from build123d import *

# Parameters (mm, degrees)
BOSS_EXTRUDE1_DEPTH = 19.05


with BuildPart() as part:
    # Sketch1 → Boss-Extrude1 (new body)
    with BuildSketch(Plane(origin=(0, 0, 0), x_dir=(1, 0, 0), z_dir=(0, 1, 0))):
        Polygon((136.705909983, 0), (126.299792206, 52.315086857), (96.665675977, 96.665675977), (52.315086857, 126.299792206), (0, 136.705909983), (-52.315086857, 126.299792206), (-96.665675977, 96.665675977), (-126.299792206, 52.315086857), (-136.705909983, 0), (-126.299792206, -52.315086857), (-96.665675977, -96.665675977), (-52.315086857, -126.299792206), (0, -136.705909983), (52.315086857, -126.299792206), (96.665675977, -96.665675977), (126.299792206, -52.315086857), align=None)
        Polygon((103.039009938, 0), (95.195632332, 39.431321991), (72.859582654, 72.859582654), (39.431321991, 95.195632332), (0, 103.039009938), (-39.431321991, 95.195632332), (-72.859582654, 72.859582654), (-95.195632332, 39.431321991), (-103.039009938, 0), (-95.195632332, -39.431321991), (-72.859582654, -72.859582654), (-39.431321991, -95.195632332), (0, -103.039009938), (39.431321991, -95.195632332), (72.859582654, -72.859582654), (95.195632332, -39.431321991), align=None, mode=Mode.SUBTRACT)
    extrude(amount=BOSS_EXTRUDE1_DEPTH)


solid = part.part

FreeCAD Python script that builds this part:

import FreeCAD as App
import Part
import Sketcher
Q = App.Units.Quantity


def add_polygon(sketch, points):
    """Adds a closed chain of lines whose ends are joined by coincident constraints."""
    first, n = sketch.GeometryCount, len(points)
    for a, b in zip(points, points[1:] + points[:1]):
        sketch.addGeometry(Part.LineSegment(App.Vector(*a, 0), App.Vector(*b, 0)), False)
    for i in range(n):
        sketch.addConstraint(Sketcher.Constraint("Coincident", first + i, 2, first + (i + 1) % n, 1))

doc = App.newDocument("Part")
params = doc.addObject("Spreadsheet::Sheet", "Params")
for row, (alias, value) in enumerate([
    ("sketch1_length", "2.1 in"),
    ("pad1_length", "0.75 in"),
], start=1):
    params.set(f"A{row}", alias)
    params.set(f"B{row}", "=" + value)
    params.setAlias(f"B{row}", alias)

body = doc.addObject("PartDesign::Body", "Body")

# Sketch on XZ plane
sketch1 = body.newObject("Sketcher::SketchObject", "Sketch")
sketch1.AttachmentSupport = (doc.getObject("XZ_Plane"), [""])
sketch1.MapMode = "FlatFace"
add_polygon(sketch1, [(137, 0), (126, -52), (97, -97), (52, -126), (0, -137), (-52, -126), (-97, -97), (-126, -52), (-137, 0), (-126, 52), (-97, 97), (-52, 126), (0, 137), (52, 126), (97, 97), (126, 52)])  # lines 0-15
add_polygon(sketch1, [(95, -39), (103, 0), (95, 39), (73, 73), (39, 95), (0, 103), (-39, 95), (-73, 73), (-95, 39), (-103, 0), (-95, -39), (-73, -73), (-39, -95), (0, -103), (39, -95), (73, -73)])  # lines 16-31
sketch1.addConstraint([
    Sketcher.Constraint("Symmetric", 0, 2, 8, 2, -1, 1),
    Sketcher.Constraint("Symmetric", 1, 2, 9, 2, -1, 1),
    Sketcher.Constraint("Symmetric", 2, 2, 10, 2, -1, 1),
    Sketcher.Constraint("Symmetric", 3, 2, 11, 2, -1, 1),
    Sketcher.Constraint("Symmetric", 4, 2, 12, 2, -1, 1),
    Sketcher.Constraint("Symmetric", 5, 2, 13, 2, -1, 1),
    Sketcher.Constraint("Symmetric", 6, 2, 14, 2, -1, 1),
    Sketcher.Constraint("Symmetric", 7, 2, 15, 2, -1, 1),
    Sketcher.Constraint("Symmetric", 16, 2, 24, 2, -1, 1),
    Sketcher.Constraint("Symmetric", 17, 2, 25, 2, -1, 1),
    Sketcher.Constraint("Symmetric", 18, 2, 26, 2, -1, 1),
    Sketcher.Constraint("Symmetric", 19, 2, 27, 2, -1, 1),
    Sketcher.Constraint("Symmetric", 20, 2, 28, 2, -1, 1),
    Sketcher.Constraint("Symmetric", 21, 2, 29, 2, -1, 1),
    Sketcher.Constraint("Symmetric", 22, 2, 30, 2, -1, 1),
    Sketcher.Constraint("Symmetric", 23, 2, 31, 2, -1, 1),
    Sketcher.Constraint("Symmetric", 2, 2, 4, 2, -2),
    Sketcher.Constraint("Symmetric", 1, 2, 5, 2, -2),
    Sketcher.Constraint("Symmetric", 0, 2, 6, 2, -2),
    Sketcher.Constraint("Symmetric", 19, 2, 21, 2, -2),
    Sketcher.Constraint("Symmetric", 18, 2, 22, 2, -2),
    Sketcher.Constraint("Symmetric", 17, 2, 23, 2, -2),
    Sketcher.Constraint("PointOnObject", 3, 2, -2),
    Sketcher.Constraint("PointOnObject", 7, 2, -1),
    Sketcher.Constraint("PointOnObject", 16, 2, -1),
    Sketcher.Constraint("PointOnObject", 20, 2, -2),
    Sketcher.Constraint("Perpendicular", 0, 4),
    Sketcher.Constraint("Perpendicular", 1, 5),
    Sketcher.Constraint("Perpendicular", 12, 16),
    Sketcher.Constraint("Parallel", 14, 18),
    Sketcher.Constraint("Parallel", 13, 19),
    Sketcher.Constraint("Perpendicular", 16, 20),
    Sketcher.Constraint("Equal", 0, 1),
    Sketcher.Constraint("Equal", 1, 2),
    Sketcher.Constraint("Equal", 2, 3),
    Sketcher.Constraint("Equal", 17, 18),
    Sketcher.Constraint("Equal", 18, 19),
    Sketcher.Constraint("Equal", 19, 20),
    Sketcher.Constraint("Distance", 0, Q("2.1 in")),
    Sketcher.Constraint("Angle", 0, Q("-101.25 deg")),
    Sketcher.Constraint("Angle", 1, Q("-123.75 deg")),
    Sketcher.Constraint("DistanceX", 16, 2, 15, 2, Q("33.6669 mm")),
])
sketch1.setExpression("Constraints[70]", "Params.sketch1_length")
pad1 = body.newObject("PartDesign::Pad", "Pad")
pad1.Profile = sketch1
pad1.setExpression("Length", "Params.pad1_length")
pad1.Reversed = True

doc.recompute()
